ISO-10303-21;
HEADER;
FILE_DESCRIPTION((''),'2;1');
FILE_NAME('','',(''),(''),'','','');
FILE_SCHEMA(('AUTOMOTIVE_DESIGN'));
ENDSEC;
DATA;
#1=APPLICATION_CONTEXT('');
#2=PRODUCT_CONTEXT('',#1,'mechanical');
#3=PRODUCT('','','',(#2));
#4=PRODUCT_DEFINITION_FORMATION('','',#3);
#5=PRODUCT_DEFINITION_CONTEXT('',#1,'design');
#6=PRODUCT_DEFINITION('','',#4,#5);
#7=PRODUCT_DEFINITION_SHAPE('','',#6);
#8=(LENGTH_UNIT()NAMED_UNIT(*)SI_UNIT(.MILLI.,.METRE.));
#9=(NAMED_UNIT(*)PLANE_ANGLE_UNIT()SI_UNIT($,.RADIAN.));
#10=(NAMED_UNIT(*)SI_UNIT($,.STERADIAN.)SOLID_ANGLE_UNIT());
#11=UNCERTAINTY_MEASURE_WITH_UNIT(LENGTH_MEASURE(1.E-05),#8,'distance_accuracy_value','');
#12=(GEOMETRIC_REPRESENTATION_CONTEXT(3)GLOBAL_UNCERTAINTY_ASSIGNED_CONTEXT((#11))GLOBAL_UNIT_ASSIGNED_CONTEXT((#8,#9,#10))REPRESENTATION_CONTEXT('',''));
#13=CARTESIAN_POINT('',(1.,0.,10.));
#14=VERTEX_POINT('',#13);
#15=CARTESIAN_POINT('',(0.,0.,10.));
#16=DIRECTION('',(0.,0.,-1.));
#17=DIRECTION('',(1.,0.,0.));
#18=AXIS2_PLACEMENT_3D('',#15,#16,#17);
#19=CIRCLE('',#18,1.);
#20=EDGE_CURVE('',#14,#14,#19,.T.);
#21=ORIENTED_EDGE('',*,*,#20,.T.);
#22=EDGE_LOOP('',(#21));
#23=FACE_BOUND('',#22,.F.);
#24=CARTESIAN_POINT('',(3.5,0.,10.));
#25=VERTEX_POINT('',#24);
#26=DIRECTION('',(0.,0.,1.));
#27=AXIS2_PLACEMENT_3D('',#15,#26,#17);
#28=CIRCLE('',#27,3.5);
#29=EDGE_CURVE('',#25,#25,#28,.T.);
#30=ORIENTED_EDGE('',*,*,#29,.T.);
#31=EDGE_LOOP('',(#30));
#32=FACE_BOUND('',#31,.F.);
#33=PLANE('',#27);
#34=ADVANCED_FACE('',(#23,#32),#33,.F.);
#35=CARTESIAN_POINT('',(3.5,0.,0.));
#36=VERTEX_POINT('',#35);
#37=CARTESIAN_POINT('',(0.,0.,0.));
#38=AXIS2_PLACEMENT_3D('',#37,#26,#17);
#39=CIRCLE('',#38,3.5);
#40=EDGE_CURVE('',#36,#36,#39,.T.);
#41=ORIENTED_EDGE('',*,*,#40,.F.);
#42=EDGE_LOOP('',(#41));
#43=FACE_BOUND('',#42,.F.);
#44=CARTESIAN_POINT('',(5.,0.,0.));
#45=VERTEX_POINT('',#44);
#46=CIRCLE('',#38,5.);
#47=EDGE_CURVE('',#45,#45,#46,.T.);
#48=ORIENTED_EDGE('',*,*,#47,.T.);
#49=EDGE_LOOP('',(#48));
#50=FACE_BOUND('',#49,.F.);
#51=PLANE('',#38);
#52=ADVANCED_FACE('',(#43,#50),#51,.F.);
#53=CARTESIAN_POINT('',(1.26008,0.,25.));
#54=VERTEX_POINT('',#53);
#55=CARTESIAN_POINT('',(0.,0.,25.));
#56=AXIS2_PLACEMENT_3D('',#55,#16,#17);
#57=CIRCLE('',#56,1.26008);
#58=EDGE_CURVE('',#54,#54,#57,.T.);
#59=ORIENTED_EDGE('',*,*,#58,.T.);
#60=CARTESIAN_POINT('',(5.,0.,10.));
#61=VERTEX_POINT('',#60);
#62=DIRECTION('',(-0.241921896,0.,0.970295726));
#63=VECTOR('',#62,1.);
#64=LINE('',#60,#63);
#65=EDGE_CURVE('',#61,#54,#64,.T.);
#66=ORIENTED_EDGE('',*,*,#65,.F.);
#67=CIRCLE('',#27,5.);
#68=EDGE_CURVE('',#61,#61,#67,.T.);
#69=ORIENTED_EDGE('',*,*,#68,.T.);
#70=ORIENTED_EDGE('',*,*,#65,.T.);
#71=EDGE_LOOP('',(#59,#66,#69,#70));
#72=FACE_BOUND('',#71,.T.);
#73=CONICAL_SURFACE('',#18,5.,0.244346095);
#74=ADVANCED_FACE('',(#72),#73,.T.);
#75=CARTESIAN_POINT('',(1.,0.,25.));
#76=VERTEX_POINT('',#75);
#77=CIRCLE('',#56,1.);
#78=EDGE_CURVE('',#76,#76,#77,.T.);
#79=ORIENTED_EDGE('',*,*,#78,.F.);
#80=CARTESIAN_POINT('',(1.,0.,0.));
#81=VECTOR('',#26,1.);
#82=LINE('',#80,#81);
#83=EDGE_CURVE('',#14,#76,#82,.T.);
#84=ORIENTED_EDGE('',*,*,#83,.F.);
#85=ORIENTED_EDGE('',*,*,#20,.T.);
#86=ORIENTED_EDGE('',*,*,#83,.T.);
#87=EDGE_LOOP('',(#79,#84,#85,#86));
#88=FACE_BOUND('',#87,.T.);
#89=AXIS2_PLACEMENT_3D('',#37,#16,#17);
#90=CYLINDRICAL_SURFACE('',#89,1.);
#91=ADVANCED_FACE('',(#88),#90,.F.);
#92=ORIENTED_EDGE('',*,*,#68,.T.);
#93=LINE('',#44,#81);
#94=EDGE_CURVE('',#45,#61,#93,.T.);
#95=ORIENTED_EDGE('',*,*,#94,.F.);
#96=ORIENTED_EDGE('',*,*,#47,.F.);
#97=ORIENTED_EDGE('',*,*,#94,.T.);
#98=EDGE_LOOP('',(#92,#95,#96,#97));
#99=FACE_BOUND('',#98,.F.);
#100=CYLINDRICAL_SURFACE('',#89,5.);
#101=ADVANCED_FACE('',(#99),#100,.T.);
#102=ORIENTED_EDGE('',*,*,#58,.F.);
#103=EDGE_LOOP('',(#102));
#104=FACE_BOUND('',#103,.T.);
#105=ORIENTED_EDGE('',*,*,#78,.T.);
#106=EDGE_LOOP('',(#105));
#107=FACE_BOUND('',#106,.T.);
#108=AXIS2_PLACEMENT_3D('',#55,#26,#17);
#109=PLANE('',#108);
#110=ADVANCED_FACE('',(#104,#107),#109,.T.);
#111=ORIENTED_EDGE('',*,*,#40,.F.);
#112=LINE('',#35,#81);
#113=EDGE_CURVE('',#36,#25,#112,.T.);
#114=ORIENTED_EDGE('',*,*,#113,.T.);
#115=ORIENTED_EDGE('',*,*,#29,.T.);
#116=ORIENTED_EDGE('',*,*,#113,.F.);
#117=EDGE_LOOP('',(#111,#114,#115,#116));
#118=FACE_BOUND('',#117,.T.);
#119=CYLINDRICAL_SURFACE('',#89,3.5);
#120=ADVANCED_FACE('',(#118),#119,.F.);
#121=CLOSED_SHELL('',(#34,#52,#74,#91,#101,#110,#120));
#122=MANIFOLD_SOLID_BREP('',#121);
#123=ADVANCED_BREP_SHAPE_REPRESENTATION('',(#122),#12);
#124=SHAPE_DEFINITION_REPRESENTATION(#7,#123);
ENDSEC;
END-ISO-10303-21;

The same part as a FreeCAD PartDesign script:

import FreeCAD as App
import Part
import Sketcher

doc = App.newDocument("Part")
body = doc.addObject("PartDesign::Body", "Body")

# Sketch on XY plane
sketch1 = body.newObject("Sketcher::SketchObject", "Sketch")
sketch1.AttachmentSupport = (doc.getObject("XY_Plane"), [""])
sketch1.MapMode = "FlatFace"
sketch1.addGeometry([
    Part.Circle(App.Vector(0, 0, 0), App.Vector(0, 0, 1), 5),
    Part.Circle(App.Vector(0, 0, 0), App.Vector(0, 0, 1), 3.5),
], False)
sketch1.addConstraint([
    Sketcher.Constraint("Coincident", 0, 3, -1, 1),
    Sketcher.Constraint("Coincident", 1, 3, -1, 1),
    Sketcher.Constraint("Diameter", 0, 10.0),
    Sketcher.Constraint("Diameter", 1, 7.0),
])
pad1 = body.newObject("PartDesign::Pad", "Pad")
pad1.Profile = sketch1
pad1.Length = 10

# Sketch on XY plane
sketch2 = body.newObject("Sketcher::SketchObject", "Sketch001")
sketch2.AttachmentSupport = (doc.getObject("XY_Plane"), [""])
sketch2.MapMode = "FlatFace"
sketch2.AttachmentOffset = App.Placement(App.Vector(0, 0, 10), App.Rotation())
sketch2.addGeometry(Part.Circle(App.Vector(0, 0, 0), App.Vector(0, 0, 1), 5), False)
sketch2.addConstraint([
    Sketcher.Constraint("Coincident", 0, 3, -1, 1),
    Sketcher.Constraint("Diameter", 0, 10.0),
])
pad2 = body.newObject("PartDesign::Pad", "Pad001")
pad2.Profile = sketch2
pad2.Length = 15
pad2.TaperAngle = -14

# Sketch on XY plane
sketch3 = body.newObject("Sketcher::SketchObject", "Sketch002")
sketch3.AttachmentSupport = (doc.getObject("XY_Plane"), [""])
sketch3.MapMode = "FlatFace"
sketch3.addGeometry(Part.Circle(App.Vector(0, 0, 0), App.Vector(0, 0, 1), 1), False)
sketch3.addConstraint([
    Sketcher.Constraint("Coincident", 0, 3, -1, 1),
    Sketcher.Constraint("Diameter", 0, 2.0),
])
pocket1 = body.newObject("PartDesign::Pocket", "Pocket")
pocket1.Profile = sketch3
pocket1.Type = "ThroughAll"
pocket1.Reversed = True

doc.recompute()
